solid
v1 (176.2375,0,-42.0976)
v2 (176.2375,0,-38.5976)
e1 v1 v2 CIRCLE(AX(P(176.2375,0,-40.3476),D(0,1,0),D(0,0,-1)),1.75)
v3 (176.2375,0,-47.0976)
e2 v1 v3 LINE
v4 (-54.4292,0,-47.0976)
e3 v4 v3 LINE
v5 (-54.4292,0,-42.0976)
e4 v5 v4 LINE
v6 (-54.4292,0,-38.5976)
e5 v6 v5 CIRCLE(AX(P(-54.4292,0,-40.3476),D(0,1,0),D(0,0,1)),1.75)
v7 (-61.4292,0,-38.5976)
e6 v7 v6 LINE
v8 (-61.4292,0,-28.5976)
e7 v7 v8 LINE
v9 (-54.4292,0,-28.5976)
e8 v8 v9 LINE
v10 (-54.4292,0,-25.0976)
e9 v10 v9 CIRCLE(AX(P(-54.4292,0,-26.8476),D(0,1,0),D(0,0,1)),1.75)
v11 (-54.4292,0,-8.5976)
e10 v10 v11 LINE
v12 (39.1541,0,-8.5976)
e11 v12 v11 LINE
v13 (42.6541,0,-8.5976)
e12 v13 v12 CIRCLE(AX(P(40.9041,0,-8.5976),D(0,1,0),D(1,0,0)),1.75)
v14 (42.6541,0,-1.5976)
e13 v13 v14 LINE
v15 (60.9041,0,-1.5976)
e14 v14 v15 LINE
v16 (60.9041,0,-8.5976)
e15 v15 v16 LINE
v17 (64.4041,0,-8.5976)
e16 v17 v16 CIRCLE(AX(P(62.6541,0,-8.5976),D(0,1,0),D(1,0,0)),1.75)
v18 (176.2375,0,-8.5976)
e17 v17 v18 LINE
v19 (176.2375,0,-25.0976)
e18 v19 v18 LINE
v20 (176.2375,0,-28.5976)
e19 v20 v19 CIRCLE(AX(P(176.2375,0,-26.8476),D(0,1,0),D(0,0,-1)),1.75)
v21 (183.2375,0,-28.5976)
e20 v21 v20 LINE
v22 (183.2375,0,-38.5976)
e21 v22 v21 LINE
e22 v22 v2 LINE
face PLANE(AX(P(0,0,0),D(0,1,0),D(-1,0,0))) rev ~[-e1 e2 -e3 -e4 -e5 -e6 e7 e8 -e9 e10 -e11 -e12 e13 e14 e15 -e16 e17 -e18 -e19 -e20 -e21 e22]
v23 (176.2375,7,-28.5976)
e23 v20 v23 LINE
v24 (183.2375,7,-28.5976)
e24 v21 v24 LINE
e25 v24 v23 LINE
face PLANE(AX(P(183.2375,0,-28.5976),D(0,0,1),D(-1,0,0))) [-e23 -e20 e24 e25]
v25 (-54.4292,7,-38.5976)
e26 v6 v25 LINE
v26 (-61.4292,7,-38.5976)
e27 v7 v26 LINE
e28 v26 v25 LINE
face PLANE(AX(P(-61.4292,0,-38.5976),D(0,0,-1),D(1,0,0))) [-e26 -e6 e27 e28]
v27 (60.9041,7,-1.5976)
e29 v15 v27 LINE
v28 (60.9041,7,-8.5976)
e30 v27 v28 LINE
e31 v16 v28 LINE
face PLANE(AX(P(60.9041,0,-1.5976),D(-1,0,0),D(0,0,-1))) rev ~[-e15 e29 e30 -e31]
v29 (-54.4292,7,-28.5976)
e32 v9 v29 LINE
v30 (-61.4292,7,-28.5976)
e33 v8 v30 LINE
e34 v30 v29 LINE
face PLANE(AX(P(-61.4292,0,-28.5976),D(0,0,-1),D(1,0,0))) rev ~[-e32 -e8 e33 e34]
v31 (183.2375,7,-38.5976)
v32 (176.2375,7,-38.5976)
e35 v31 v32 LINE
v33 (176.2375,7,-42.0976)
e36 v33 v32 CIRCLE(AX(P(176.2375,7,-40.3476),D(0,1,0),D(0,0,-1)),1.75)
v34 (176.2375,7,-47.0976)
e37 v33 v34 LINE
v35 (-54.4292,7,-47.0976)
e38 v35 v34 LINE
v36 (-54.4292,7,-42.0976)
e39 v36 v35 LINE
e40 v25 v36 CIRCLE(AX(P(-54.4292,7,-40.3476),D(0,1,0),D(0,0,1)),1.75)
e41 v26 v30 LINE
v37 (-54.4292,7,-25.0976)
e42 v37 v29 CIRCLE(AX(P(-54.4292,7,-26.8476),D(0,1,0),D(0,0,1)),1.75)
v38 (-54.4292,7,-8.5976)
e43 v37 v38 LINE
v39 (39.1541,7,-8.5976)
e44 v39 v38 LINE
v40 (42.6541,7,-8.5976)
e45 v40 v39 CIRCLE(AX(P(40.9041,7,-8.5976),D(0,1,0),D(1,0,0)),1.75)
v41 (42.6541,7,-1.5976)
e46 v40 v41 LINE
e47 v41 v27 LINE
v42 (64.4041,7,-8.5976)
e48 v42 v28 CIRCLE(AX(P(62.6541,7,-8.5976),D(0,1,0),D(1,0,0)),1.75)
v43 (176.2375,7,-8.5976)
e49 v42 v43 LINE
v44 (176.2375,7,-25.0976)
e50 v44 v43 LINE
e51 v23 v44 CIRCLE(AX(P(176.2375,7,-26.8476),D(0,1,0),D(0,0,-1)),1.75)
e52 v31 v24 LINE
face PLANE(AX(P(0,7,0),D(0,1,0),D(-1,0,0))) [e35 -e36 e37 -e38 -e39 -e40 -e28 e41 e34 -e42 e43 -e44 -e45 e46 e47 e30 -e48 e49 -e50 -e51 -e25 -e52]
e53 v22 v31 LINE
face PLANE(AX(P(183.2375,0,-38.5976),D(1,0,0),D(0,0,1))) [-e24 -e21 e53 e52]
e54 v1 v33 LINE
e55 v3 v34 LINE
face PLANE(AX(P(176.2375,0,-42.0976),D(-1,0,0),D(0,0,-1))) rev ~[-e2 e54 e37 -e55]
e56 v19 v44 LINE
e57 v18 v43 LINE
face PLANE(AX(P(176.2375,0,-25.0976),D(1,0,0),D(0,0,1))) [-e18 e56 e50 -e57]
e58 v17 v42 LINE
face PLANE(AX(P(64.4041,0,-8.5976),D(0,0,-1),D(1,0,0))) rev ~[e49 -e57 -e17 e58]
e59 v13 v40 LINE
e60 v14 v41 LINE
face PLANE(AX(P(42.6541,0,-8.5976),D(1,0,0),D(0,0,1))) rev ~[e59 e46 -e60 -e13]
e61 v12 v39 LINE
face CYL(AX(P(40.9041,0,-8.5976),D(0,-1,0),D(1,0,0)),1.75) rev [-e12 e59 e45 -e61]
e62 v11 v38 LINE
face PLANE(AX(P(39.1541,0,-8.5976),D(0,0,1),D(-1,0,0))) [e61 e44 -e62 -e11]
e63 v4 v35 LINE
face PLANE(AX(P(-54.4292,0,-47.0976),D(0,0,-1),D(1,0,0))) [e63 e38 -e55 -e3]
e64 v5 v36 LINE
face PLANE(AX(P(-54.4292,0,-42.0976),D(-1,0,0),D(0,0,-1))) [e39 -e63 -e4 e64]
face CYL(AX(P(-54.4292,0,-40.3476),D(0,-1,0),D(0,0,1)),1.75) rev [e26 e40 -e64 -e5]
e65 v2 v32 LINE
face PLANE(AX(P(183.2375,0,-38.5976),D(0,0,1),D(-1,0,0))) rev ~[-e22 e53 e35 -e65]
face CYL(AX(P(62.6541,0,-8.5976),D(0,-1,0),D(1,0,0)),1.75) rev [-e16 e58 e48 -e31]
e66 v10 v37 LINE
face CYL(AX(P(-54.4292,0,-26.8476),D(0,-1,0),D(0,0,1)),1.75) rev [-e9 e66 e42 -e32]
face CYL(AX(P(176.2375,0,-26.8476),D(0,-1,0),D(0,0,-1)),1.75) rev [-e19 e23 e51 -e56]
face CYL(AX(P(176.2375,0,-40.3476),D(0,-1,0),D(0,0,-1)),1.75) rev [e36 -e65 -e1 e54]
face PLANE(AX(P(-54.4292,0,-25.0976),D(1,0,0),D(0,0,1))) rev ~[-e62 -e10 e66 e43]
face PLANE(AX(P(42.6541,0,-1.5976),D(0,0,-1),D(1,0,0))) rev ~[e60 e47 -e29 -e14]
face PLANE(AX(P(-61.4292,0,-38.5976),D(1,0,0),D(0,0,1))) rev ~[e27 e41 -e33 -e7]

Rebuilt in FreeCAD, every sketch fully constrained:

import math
import FreeCAD as App
import Part
import Sketcher
Q = App.Units.Quantity

doc = App.newDocument("Part")
body = doc.addObject("PartDesign::Body", "Body")

# Sketch on XZ plane
sketch1 = body.newObject("Sketcher::SketchObject", "Sketch")
sketch1.AttachmentSupport = (doc.getObject("XZ_Plane"), [""])
sketch1.MapMode = "FlatFace"
sketch1.addGeometry([
    Part.ArcOfCircle(Part.Circle(App.Vector(-54.4, -40.3, 0), App.Vector(0, 0, 1), 1.8), math.radians(-90), math.radians(90)),  # 0
    Part.LineSegment(App.Vector(-54.4, -38.6, 0), App.Vector(-61.4, -38.6, 0)),  # 1
    Part.LineSegment(App.Vector(-61.4, -38.6, 0), App.Vector(-61.4, -28.6, 0)),  # 2
    Part.LineSegment(App.Vector(-61.4, -28.6, 0), App.Vector(-54.4, -28.6, 0)),  # 3
    Part.ArcOfCircle(Part.Circle(App.Vector(-54.4, -26.8, 0), App.Vector(0, 0, 1), 1.8), math.radians(-90), math.radians(90)),  # 4
    Part.LineSegment(App.Vector(-54.4, -25.1, 0), App.Vector(-54.4, -8.6, 0)),  # 5
    Part.LineSegment(App.Vector(-54.4, -8.6, 0), App.Vector(39.2, -8.6, 0)),  # 6
    Part.ArcOfCircle(Part.Circle(App.Vector(40.9, -8.6, 0), App.Vector(0, 0, 1), 1.8), math.radians(180), math.radians(360)),  # 7
    Part.LineSegment(App.Vector(42.7, -8.6, 0), App.Vector(42.7, -1.6, 0)),  # 8
    Part.LineSegment(App.Vector(42.7, -1.6, 0), App.Vector(60.9, -1.6, 0)),  # 9
    Part.LineSegment(App.Vector(60.9, -1.6, 0), App.Vector(60.9, -8.6, 0)),  # 10
    Part.ArcOfCircle(Part.Circle(App.Vector(62.7, -8.6, 0), App.Vector(0, 0, 1), 1.8), math.radians(180), math.radians(360)),  # 11
    Part.LineSegment(App.Vector(64.4, -8.6, 0), App.Vector(176.2, -8.6, 0)),  # 12
    Part.LineSegment(App.Vector(176.2, -8.6, 0), App.Vector(176.2, -25.1, 0)),  # 13
    Part.ArcOfCircle(Part.Circle(App.Vector(176.2, -26.8, 0), App.Vector(0, 0, 1), 1.8), math.radians(90), math.radians(270)),  # 14
    Part.LineSegment(App.Vector(176.2, -28.6, 0), App.Vector(183.2, -28.6, 0)),  # 15
    Part.LineSegment(App.Vector(183.2, -28.6, 0), App.Vector(183.2, -38.6, 0)),  # 16
    Part.LineSegment(App.Vector(183.2, -38.6, 0), App.Vector(176.2, -38.6, 0)),  # 17
    Part.ArcOfCircle(Part.Circle(App.Vector(176.2, -40.3, 0), App.Vector(0, 0, 1), 1.8), math.radians(90), math.radians(270)),  # 18
    Part.LineSegment(App.Vector(176.2, -42.1, 0), App.Vector(176.2, -47.1, 0)),  # 19
    Part.LineSegment(App.Vector(176.2, -47.1, 0), App.Vector(-54.4, -47.1, 0)),  # 20
    Part.LineSegment(App.Vector(-54.4, -47.1, 0), App.Vector(-54.4, -42.1, 0)),  # 21
], False)
sketch1.addConstraint([
    Sketcher.Constraint("Tangent", 0, 2, 1, 1),
    Sketcher.Constraint("Coincident", 1, 2, 2, 1),
    Sketcher.Constraint("Coincident", 2, 2, 3, 1),
    Sketcher.Constraint("Tangent", 3, 2, 4, 1),
    Sketcher.Constraint("Coincident", 4, 2, 5, 1),
    Sketcher.Constraint("Coincident", 5, 2, 6, 1),
    Sketcher.Constraint("Coincident", 6, 2, 7, 1),
    Sketcher.Constraint("Tangent", 7, 2, 8, 1),
    Sketcher.Constraint("Coincident", 8, 2, 9, 1),
    Sketcher.Constraint("Coincident", 9, 2, 10, 1),
    Sketcher.Constraint("Tangent", 10, 2, 11, 1),
    Sketcher.Constraint("Coincident", 11, 2, 12, 1),
    Sketcher.Constraint("Coincident", 12, 2, 13, 1),
    Sketcher.Constraint("Coincident", 13, 2, 14, 1),
    Sketcher.Constraint("Tangent", 14, 2, 15, 1),
    Sketcher.Constraint("Coincident", 15, 2, 16, 1),
    Sketcher.Constraint("Coincident", 16, 2, 17, 1),
    Sketcher.Constraint("Tangent", 17, 2, 18, 1),
    Sketcher.Constraint("Coincident", 18, 2, 19, 1),
    Sketcher.Constraint("Coincident", 19, 2, 20, 1),
    Sketcher.Constraint("Coincident", 20, 2, 21, 1),
    Sketcher.Constraint("Coincident", 21, 2, 0, 1),
    Sketcher.Constraint("Horizontal", 1),
    Sketcher.Constraint("Vertical", 2),
    Sketcher.Constraint("Horizontal", 3),
    Sketcher.Constraint("Vertical", 5),
    Sketcher.Constraint("Horizontal", 6),
    Sketcher.Constraint("Vertical", 8),
    Sketcher.Constraint("Horizontal", 9),
    Sketcher.Constraint("Vertical", 10),
    Sketcher.Constraint("Horizontal", 12),
    Sketcher.Constraint("Vertical", 13),
    Sketcher.Constraint("Horizontal", 15),
    Sketcher.Constraint("Vertical", 16),
    Sketcher.Constraint("Horizontal", 17),
    Sketcher.Constraint("Vertical", 19),
    Sketcher.Constraint("Horizontal", 20),
    Sketcher.Constraint("Vertical", 21),
    Sketcher.Constraint("Equal", 0, 4),
    Sketcher.Constraint("Equal", 4, 7),
    Sketcher.Constraint("Equal", 7, 11),
    Sketcher.Constraint("Equal", 11, 14),
    Sketcher.Constraint("Equal", 14, 18),
    Sketcher.Constraint("Horizontal", 7, 3, 11, 3),
    Sketcher.Constraint("Horizontal", 4, 3, 14, 3),
    Sketcher.Constraint("Horizontal", 0, 3, 18, 3),
    Sketcher.Constraint("Horizontal", 11, 3, 5, 2),
    Sketcher.Constraint("Horizontal", 10, 2, 11, 2),
    Sketcher.Constraint("Vertical", 0, 3, 4, 3),
    Sketcher.Constraint("Vertical", 14, 3, 18, 3),
    Sketcher.Constraint("Vertical", 3, 2, 4, 2),
    Sketcher.Constraint("Vertical", 18, 3, 12, 2),
    Sketcher.Constraint("Vertical", 17, 2, 18, 2),
    Sketcher.Constraint("Vertical", 5, 2, 20, 2),
    Sketcher.Constraint("Equal", 3, 15),
    Sketcher.Constraint("Equal", 17, 8),
    Sketcher.Constraint("DistanceX", 1, 2, 1, 1, Q("7 mm")),
    Sketcher.Constraint("DistanceY", 2, 1, 2, 2, Q("10 mm")),
    Sketcher.Constraint("DistanceY", 19, 2, 19, 1, Q("5 mm")),
    Sketcher.Constraint("Radius", 0, Q("1.75 mm")),
    Sketcher.Constraint("DistanceY", 2, 2, 7, 3, Q("20 mm")),
    Sketcher.Constraint("DistanceX", 7, 2, 11, 3, Q("20 mm")),
    Sketcher.Constraint("DistanceX", 20, 2, 20, 1, Q("230.6667 mm")),
    Sketcher.Constraint("DistanceX", 5, 2, 7, 2, Q("97.0833 mm")),
    Sketcher.Constraint("DistanceX", -1, 1, 7, 3, Q("40.904 mm")),
    Sketcher.Constraint("DistanceY", 0, 3, -1, 1, Q("40.3476 mm")),
])
pad1 = body.newObject("PartDesign::Pad", "Pad")
pad1.Profile = sketch1
pad1.Length = 7
pad1.Reversed = True

doc.recompute()
